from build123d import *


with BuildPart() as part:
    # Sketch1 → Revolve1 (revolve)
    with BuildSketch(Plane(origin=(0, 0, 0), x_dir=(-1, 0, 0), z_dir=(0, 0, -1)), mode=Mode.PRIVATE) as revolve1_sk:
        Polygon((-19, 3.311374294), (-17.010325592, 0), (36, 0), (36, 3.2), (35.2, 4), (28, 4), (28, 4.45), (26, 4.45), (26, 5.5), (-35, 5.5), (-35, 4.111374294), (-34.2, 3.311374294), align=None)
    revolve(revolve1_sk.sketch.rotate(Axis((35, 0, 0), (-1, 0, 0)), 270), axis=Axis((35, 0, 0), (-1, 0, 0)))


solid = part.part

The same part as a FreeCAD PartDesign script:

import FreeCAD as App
import Part
import Sketcher
from FreeCAD import Vector
Q = App.Units.Quantity


def add_polygon(sketch, points):
    """Adds a closed chain of lines whose ends are joined by coincident constraints."""
    first, n = sketch.GeometryCount, len(points)
    for a, b in zip(points, points[1:] + points[:1]):
        sketch.addGeometry(Part.LineSegment(App.Vector(*a, 0), App.Vector(*b, 0)), False)
    for i in range(n):
        sketch.addConstraint(Sketcher.Constraint("Coincident", first + i, 2, first + (i + 1) % n, 1))

doc = App.newDocument("Part")
body = doc.addObject("PartDesign::Body", "Body")

sketch1 = doc.addObject("Sketcher::SketchObject", "Sketch")
body.addObject(sketch1)
sketch1.AttachmentSupport = (doc.XY_Plane, [""])
sketch1.MapMode = "FlatFace"
add_polygon(sketch1, [(19, 3.31), (17.01, 0), (-36, 0), (-36, 3.2), (-35.2, 4), (-28, 4), (-28, 4.45), (-26, 4.45), (-26, 5.5), (35, 5.5), (35, 4.11), (34.2, 3.31)])
sketch1.addConstraint([
    Sketcher.Constraint("Horizontal", 1),
    Sketcher.Constraint("Vertical", 2),
    Sketcher.Constraint("Horizontal", 4),
    Sketcher.Constraint("Vertical", 5),
    Sketcher.Constraint("Horizontal", 6),
    Sketcher.Constraint("Vertical", 7),
    Sketcher.Constraint("Horizontal", 8),
    Sketcher.Constraint("Vertical", 9),
    Sketcher.Constraint("Horizontal", 11),
    Sketcher.Constraint("PointOnObject", 0, 2, -1),
    Sketcher.Constraint("Parallel", 3, 10),
    Sketcher.Constraint("Equal", 3, 10),
    Sketcher.Constraint("DistanceX", 6, 1, 6, 2, 2.0),
    Sketcher.Constraint("DistanceX", 8, 1, 8, 2, 61.0),
    Sketcher.Constraint("Angle", 0, Q("-121 deg")),
    Sketcher.Constraint("Angle", 3, Q("45 deg")),
    Sketcher.Constraint("DistanceX", 4, 1, 4, 2, 7.2),
    Sketcher.Constraint("DistanceX", 11, 2, 11, 1, 15.2),
    Sketcher.Constraint("DistanceY", 2, 1, 2, 2, 3.2),
    Sketcher.Constraint("DistanceX", 1, 2, -1, 1, 36.0),
    Sketcher.Constraint("DistanceY", -1, 1, 3, 2, 4.0),
    Sketcher.Constraint("DistanceY", 5, 1, 5, 2, 0.45),
    Sketcher.Constraint("DistanceY", 7, 1, 7, 2, 1.05),
    Sketcher.Constraint("Distance", 0, 3.86316),
])
revolution = doc.addObject("PartDesign::Revolution", "Revolution")
body.addObject(revolution)
revolution.Profile = sketch1
revolution.ReferenceAxis = (sketch1, ["H_Axis"])
revolution.Angle = 360

doc.recompute()
